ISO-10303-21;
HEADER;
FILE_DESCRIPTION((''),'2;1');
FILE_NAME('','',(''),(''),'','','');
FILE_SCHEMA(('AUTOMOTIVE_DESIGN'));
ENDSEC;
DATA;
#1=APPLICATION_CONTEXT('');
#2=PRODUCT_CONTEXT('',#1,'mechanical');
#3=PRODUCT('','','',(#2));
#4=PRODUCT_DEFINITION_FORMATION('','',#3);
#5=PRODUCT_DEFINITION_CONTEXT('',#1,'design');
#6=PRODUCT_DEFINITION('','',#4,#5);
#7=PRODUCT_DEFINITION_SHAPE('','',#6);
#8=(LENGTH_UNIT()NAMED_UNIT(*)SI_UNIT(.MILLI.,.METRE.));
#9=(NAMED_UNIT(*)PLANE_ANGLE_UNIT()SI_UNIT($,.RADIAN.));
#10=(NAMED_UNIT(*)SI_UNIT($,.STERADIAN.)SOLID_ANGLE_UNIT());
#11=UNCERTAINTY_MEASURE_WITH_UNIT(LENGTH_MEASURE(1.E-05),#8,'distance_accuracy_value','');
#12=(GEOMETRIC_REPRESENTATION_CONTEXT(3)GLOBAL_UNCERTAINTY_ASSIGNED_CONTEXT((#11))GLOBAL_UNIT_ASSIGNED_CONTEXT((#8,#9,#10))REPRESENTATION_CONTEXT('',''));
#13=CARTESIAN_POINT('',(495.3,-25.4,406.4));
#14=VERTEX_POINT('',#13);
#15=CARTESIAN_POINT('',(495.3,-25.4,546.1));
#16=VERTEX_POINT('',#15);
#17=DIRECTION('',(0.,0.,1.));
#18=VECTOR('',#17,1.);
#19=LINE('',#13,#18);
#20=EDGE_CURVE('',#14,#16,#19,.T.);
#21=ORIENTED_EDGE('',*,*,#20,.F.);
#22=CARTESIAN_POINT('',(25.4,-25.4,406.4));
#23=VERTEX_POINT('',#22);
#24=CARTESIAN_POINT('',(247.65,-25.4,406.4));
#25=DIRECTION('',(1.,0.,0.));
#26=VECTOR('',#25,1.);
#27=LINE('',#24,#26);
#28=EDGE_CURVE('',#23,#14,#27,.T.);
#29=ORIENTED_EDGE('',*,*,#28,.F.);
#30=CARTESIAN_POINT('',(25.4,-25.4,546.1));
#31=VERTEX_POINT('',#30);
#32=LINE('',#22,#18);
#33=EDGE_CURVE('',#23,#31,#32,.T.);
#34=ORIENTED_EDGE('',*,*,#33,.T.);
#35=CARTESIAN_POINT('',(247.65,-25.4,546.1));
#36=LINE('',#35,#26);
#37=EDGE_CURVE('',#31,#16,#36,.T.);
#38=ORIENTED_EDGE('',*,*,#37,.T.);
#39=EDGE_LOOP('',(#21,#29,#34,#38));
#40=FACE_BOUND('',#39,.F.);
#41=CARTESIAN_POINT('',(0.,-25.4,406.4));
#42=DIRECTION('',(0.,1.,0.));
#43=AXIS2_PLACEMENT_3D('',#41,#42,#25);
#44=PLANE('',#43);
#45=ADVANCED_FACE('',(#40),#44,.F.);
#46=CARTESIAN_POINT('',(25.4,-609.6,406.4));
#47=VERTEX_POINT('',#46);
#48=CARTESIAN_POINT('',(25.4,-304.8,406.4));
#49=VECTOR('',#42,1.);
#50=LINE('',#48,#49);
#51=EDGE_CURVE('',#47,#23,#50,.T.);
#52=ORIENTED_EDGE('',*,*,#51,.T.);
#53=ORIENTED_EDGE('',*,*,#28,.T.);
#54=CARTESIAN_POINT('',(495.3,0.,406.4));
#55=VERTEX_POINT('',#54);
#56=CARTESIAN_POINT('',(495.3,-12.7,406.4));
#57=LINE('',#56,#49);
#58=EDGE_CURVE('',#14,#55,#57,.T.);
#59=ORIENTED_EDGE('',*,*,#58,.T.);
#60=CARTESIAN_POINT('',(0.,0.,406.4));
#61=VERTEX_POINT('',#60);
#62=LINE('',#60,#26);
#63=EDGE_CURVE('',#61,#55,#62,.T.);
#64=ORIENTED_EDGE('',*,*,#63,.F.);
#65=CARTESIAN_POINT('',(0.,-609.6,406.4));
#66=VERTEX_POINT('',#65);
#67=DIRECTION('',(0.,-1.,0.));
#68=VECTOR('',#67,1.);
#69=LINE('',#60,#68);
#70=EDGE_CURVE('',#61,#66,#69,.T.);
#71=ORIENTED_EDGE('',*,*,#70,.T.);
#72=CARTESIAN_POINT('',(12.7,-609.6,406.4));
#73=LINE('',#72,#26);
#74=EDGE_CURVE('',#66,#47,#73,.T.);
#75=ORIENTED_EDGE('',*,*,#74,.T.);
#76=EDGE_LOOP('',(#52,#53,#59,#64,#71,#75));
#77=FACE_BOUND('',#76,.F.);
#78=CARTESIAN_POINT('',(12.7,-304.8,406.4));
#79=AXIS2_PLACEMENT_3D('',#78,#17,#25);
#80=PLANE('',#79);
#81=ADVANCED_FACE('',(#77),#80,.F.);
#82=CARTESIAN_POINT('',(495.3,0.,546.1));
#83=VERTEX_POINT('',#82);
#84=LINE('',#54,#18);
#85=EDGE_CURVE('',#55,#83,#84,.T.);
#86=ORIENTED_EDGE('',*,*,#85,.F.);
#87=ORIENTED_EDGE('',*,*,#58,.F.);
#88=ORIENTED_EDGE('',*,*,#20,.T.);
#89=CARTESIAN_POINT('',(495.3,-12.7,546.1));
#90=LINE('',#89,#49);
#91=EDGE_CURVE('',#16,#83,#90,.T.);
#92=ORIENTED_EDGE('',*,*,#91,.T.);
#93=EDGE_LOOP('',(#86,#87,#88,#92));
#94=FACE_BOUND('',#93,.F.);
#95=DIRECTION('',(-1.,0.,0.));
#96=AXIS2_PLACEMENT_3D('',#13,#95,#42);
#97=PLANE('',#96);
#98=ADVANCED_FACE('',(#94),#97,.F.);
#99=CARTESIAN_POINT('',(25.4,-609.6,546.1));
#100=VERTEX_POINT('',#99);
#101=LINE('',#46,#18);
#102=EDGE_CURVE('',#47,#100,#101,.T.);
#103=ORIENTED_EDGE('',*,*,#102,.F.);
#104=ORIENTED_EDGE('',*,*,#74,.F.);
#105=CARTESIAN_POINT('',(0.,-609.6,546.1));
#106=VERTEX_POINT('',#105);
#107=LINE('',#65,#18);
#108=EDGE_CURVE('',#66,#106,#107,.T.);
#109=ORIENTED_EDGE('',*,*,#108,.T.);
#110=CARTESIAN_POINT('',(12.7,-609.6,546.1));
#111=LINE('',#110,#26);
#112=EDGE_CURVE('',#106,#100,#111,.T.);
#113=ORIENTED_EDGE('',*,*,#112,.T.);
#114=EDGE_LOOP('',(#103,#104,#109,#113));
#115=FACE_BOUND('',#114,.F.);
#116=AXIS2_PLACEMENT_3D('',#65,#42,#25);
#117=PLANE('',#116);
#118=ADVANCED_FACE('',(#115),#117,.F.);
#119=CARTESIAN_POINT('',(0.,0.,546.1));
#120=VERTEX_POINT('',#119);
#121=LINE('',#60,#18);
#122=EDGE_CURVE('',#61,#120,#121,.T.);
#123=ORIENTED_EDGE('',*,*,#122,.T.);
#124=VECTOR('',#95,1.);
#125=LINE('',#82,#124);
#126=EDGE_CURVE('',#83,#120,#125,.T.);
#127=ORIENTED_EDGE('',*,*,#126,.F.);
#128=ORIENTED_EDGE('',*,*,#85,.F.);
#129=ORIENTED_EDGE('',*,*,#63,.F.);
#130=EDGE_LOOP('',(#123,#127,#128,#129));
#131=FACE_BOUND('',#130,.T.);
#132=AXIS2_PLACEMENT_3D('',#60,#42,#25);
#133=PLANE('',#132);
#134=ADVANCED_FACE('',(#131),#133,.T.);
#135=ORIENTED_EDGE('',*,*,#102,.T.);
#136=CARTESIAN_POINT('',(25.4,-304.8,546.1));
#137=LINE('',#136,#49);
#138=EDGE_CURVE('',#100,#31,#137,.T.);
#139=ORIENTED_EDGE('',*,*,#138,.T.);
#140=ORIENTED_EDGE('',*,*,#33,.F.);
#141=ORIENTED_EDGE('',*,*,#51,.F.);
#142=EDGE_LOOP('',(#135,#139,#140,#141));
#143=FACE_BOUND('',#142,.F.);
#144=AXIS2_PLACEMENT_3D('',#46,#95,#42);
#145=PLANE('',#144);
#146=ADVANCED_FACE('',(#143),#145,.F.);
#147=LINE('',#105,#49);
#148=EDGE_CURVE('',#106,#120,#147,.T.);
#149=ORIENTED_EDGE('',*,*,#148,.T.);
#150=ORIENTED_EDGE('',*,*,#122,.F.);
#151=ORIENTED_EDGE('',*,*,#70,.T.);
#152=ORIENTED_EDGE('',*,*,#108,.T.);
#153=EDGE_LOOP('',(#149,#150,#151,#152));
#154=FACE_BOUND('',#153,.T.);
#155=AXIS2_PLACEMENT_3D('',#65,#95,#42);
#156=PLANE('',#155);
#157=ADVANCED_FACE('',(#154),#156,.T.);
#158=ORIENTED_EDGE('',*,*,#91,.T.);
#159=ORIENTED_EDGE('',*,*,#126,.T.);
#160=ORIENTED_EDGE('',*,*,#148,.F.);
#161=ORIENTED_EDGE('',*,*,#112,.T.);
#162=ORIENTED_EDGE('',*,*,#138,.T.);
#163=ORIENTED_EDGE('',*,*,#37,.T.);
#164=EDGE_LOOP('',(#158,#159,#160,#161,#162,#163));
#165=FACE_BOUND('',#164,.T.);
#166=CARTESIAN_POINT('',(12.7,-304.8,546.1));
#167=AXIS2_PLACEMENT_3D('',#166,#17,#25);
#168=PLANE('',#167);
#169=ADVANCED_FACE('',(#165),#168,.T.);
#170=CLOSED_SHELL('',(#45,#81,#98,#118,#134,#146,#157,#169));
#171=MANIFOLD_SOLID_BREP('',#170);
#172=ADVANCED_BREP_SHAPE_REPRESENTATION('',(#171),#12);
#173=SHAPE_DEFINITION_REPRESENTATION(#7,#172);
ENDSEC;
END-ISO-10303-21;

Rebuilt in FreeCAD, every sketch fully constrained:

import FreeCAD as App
import Part
import Sketcher
Q = App.Units.Quantity


def add_polygon(sketch, points):
    """Adds a closed chain of lines whose ends are joined by coincident constraints."""
    first, n = sketch.GeometryCount, len(points)
    for a, b in zip(points, points[1:] + points[:1]):
        sketch.addGeometry(Part.LineSegment(App.Vector(*a, 0), App.Vector(*b, 0)), False)
    for i in range(n):
        sketch.addConstraint(Sketcher.Constraint("Coincident", first + i, 2, first + (i + 1) % n, 1))

doc = App.newDocument("Part")
body = doc.addObject("PartDesign::Body", "Body")

# Sketch on XY plane
sketch1 = doc.addObject("Sketcher::SketchObject", "Sketch")
body.addObject(sketch1)
sketch1.AttachmentSupport = (doc.XY_Plane, [""])
sketch1.MapMode = "FlatFace"
sketch1.AttachmentOffset = App.Placement(App.Vector(0, 0, 16 * 25.4), App.Rotation())
add_polygon(sketch1, [(0, 0), (0, -609.6), (25.4, -609.6), (25.4, 0)])  # lines 0-3
sketch1.addConstraint(Sketcher.Constraint("Vertical", 0))
sketch1.addConstraint(Sketcher.Constraint("Horizontal", 1))
sketch1.addConstraint(Sketcher.Constraint("Vertical", 2))
sketch1.addConstraint(Sketcher.Constraint("Horizontal", 3))
sketch1.addConstraint(Sketcher.Constraint("Coincident", 3, 2, -1, 1))
sketch1.addConstraint(Sketcher.Constraint("DistanceX", 1, 1, 1, 2, Q("1 in")))
sketch1.addConstraint(Sketcher.Constraint("DistanceY", 0, 2, 0, 1, Q("24 in")))
pad1 = doc.addObject("PartDesign::Pad", "Pad")
body.addObject(pad1)
pad1.Profile = sketch1
pad1.Length = Q("5.5 in")
body2 = doc.addObject("PartDesign::Body", "Body001")

# Sketch on XY plane
sketch2 = doc.addObject("Sketcher::SketchObject", "Sketch001")
body2.addObject(sketch2)
sketch2.AttachmentSupport = (doc.getObject("XY_Plane001"), [""])
sketch2.MapMode = "FlatFace"
sketch2.AttachmentOffset = App.Placement(App.Vector(0, 0, 16 * 25.4), App.Rotation())
add_polygon(sketch2, [(0, 0), (0, -25.4), (495.3, -25.4), (495.3, 0)])  # lines 0-3
sketch2.addConstraint(Sketcher.Constraint("Vertical", 0))
sketch2.addConstraint(Sketcher.Constraint("Horizontal", 1))
sketch2.addConstraint(Sketcher.Constraint("Vertical", 2))
sketch2.addConstraint(Sketcher.Constraint("Horizontal", 3))
sketch2.addConstraint(Sketcher.Constraint("Coincident", 3, 2, -1, 1))
sketch2.addConstraint(Sketcher.Constraint("DistanceY", 0, 2, 0, 1, Q("1 in")))
sketch2.addConstraint(Sketcher.Constraint("DistanceX", 1, 1, 1, 2, Q("19.5 in")))
pad2 = doc.addObject("PartDesign::Pad", "Pad001")
body2.addObject(pad2)
pad2.Profile = sketch2
pad2.Length = Q("5.5 in")
doc.recompute()

boolean = doc.addObject("PartDesign::Boolean", "Boolean")
body2.addObject(boolean)
boolean.Type = "Fuse"
boolean.addObjects([body])

doc.recompute()
